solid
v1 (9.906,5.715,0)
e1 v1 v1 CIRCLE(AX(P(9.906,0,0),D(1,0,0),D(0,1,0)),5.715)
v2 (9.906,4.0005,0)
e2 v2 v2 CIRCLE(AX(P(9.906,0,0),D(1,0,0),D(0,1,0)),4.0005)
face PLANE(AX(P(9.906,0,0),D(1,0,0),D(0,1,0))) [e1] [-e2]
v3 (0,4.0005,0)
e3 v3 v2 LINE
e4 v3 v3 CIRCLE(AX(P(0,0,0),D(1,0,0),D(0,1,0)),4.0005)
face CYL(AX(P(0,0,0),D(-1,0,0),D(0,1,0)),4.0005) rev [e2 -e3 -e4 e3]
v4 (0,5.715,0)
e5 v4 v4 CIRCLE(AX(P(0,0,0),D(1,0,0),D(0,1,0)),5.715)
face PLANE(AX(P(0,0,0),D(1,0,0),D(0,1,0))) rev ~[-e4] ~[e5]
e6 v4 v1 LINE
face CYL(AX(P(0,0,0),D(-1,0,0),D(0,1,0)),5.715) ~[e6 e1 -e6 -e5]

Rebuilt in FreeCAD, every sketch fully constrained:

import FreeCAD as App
import Part
import Sketcher
Q = App.Units.Quantity

doc = App.newDocument("Part")
params = doc.addObject("Spreadsheet::Sheet", "Params")
for row, (alias, value) in enumerate([
    ("sketch1_diameter", "0.45 in"),
    ("sketch1_diameter2", "0.315 in"),
    ("pad1_length", "0.39 in"),
], start=1):
    params.set(f"A{row}", alias)
    params.set(f"B{row}", "=" + value)
    params.setAlias(f"B{row}", alias)

body = doc.addObject("PartDesign::Body", "Body")

# Sketch on YZ plane
sketch1 = body.newObject("Sketcher::SketchObject", "Sketch")
sketch1.AttachmentSupport = (doc.getObject("YZ_Plane"), [""])
sketch1.MapMode = "FlatFace"
sketch1.addGeometry(Part.Circle(App.Vector(0, 0, 0), App.Vector(0, 0, 1), 5.715), False)
sketch1.addGeometry(Part.Circle(App.Vector(0, 0, 0), App.Vector(0, 0, 1), 4.0005), False)
sketch1.addConstraint(Sketcher.Constraint("Coincident", 0, 3, -1, 1))
sketch1.addConstraint(Sketcher.Constraint("Coincident", 1, 3, -1, 1))
sketch1.addConstraint(Sketcher.Constraint("Diameter", 0, Q("0.45 in")))
sketch1.addConstraint(Sketcher.Constraint("Diameter", 1, Q("0.315 in")))
sketch1.setExpression("Constraints[2]", "Params.sketch1_diameter")
sketch1.setExpression("Constraints[3]", "Params.sketch1_diameter2")
pad1 = body.newObject("PartDesign::Pad", "Pad")
pad1.Profile = sketch1
pad1.setExpression("Length", "Params.pad1_length")

doc.recompute()
